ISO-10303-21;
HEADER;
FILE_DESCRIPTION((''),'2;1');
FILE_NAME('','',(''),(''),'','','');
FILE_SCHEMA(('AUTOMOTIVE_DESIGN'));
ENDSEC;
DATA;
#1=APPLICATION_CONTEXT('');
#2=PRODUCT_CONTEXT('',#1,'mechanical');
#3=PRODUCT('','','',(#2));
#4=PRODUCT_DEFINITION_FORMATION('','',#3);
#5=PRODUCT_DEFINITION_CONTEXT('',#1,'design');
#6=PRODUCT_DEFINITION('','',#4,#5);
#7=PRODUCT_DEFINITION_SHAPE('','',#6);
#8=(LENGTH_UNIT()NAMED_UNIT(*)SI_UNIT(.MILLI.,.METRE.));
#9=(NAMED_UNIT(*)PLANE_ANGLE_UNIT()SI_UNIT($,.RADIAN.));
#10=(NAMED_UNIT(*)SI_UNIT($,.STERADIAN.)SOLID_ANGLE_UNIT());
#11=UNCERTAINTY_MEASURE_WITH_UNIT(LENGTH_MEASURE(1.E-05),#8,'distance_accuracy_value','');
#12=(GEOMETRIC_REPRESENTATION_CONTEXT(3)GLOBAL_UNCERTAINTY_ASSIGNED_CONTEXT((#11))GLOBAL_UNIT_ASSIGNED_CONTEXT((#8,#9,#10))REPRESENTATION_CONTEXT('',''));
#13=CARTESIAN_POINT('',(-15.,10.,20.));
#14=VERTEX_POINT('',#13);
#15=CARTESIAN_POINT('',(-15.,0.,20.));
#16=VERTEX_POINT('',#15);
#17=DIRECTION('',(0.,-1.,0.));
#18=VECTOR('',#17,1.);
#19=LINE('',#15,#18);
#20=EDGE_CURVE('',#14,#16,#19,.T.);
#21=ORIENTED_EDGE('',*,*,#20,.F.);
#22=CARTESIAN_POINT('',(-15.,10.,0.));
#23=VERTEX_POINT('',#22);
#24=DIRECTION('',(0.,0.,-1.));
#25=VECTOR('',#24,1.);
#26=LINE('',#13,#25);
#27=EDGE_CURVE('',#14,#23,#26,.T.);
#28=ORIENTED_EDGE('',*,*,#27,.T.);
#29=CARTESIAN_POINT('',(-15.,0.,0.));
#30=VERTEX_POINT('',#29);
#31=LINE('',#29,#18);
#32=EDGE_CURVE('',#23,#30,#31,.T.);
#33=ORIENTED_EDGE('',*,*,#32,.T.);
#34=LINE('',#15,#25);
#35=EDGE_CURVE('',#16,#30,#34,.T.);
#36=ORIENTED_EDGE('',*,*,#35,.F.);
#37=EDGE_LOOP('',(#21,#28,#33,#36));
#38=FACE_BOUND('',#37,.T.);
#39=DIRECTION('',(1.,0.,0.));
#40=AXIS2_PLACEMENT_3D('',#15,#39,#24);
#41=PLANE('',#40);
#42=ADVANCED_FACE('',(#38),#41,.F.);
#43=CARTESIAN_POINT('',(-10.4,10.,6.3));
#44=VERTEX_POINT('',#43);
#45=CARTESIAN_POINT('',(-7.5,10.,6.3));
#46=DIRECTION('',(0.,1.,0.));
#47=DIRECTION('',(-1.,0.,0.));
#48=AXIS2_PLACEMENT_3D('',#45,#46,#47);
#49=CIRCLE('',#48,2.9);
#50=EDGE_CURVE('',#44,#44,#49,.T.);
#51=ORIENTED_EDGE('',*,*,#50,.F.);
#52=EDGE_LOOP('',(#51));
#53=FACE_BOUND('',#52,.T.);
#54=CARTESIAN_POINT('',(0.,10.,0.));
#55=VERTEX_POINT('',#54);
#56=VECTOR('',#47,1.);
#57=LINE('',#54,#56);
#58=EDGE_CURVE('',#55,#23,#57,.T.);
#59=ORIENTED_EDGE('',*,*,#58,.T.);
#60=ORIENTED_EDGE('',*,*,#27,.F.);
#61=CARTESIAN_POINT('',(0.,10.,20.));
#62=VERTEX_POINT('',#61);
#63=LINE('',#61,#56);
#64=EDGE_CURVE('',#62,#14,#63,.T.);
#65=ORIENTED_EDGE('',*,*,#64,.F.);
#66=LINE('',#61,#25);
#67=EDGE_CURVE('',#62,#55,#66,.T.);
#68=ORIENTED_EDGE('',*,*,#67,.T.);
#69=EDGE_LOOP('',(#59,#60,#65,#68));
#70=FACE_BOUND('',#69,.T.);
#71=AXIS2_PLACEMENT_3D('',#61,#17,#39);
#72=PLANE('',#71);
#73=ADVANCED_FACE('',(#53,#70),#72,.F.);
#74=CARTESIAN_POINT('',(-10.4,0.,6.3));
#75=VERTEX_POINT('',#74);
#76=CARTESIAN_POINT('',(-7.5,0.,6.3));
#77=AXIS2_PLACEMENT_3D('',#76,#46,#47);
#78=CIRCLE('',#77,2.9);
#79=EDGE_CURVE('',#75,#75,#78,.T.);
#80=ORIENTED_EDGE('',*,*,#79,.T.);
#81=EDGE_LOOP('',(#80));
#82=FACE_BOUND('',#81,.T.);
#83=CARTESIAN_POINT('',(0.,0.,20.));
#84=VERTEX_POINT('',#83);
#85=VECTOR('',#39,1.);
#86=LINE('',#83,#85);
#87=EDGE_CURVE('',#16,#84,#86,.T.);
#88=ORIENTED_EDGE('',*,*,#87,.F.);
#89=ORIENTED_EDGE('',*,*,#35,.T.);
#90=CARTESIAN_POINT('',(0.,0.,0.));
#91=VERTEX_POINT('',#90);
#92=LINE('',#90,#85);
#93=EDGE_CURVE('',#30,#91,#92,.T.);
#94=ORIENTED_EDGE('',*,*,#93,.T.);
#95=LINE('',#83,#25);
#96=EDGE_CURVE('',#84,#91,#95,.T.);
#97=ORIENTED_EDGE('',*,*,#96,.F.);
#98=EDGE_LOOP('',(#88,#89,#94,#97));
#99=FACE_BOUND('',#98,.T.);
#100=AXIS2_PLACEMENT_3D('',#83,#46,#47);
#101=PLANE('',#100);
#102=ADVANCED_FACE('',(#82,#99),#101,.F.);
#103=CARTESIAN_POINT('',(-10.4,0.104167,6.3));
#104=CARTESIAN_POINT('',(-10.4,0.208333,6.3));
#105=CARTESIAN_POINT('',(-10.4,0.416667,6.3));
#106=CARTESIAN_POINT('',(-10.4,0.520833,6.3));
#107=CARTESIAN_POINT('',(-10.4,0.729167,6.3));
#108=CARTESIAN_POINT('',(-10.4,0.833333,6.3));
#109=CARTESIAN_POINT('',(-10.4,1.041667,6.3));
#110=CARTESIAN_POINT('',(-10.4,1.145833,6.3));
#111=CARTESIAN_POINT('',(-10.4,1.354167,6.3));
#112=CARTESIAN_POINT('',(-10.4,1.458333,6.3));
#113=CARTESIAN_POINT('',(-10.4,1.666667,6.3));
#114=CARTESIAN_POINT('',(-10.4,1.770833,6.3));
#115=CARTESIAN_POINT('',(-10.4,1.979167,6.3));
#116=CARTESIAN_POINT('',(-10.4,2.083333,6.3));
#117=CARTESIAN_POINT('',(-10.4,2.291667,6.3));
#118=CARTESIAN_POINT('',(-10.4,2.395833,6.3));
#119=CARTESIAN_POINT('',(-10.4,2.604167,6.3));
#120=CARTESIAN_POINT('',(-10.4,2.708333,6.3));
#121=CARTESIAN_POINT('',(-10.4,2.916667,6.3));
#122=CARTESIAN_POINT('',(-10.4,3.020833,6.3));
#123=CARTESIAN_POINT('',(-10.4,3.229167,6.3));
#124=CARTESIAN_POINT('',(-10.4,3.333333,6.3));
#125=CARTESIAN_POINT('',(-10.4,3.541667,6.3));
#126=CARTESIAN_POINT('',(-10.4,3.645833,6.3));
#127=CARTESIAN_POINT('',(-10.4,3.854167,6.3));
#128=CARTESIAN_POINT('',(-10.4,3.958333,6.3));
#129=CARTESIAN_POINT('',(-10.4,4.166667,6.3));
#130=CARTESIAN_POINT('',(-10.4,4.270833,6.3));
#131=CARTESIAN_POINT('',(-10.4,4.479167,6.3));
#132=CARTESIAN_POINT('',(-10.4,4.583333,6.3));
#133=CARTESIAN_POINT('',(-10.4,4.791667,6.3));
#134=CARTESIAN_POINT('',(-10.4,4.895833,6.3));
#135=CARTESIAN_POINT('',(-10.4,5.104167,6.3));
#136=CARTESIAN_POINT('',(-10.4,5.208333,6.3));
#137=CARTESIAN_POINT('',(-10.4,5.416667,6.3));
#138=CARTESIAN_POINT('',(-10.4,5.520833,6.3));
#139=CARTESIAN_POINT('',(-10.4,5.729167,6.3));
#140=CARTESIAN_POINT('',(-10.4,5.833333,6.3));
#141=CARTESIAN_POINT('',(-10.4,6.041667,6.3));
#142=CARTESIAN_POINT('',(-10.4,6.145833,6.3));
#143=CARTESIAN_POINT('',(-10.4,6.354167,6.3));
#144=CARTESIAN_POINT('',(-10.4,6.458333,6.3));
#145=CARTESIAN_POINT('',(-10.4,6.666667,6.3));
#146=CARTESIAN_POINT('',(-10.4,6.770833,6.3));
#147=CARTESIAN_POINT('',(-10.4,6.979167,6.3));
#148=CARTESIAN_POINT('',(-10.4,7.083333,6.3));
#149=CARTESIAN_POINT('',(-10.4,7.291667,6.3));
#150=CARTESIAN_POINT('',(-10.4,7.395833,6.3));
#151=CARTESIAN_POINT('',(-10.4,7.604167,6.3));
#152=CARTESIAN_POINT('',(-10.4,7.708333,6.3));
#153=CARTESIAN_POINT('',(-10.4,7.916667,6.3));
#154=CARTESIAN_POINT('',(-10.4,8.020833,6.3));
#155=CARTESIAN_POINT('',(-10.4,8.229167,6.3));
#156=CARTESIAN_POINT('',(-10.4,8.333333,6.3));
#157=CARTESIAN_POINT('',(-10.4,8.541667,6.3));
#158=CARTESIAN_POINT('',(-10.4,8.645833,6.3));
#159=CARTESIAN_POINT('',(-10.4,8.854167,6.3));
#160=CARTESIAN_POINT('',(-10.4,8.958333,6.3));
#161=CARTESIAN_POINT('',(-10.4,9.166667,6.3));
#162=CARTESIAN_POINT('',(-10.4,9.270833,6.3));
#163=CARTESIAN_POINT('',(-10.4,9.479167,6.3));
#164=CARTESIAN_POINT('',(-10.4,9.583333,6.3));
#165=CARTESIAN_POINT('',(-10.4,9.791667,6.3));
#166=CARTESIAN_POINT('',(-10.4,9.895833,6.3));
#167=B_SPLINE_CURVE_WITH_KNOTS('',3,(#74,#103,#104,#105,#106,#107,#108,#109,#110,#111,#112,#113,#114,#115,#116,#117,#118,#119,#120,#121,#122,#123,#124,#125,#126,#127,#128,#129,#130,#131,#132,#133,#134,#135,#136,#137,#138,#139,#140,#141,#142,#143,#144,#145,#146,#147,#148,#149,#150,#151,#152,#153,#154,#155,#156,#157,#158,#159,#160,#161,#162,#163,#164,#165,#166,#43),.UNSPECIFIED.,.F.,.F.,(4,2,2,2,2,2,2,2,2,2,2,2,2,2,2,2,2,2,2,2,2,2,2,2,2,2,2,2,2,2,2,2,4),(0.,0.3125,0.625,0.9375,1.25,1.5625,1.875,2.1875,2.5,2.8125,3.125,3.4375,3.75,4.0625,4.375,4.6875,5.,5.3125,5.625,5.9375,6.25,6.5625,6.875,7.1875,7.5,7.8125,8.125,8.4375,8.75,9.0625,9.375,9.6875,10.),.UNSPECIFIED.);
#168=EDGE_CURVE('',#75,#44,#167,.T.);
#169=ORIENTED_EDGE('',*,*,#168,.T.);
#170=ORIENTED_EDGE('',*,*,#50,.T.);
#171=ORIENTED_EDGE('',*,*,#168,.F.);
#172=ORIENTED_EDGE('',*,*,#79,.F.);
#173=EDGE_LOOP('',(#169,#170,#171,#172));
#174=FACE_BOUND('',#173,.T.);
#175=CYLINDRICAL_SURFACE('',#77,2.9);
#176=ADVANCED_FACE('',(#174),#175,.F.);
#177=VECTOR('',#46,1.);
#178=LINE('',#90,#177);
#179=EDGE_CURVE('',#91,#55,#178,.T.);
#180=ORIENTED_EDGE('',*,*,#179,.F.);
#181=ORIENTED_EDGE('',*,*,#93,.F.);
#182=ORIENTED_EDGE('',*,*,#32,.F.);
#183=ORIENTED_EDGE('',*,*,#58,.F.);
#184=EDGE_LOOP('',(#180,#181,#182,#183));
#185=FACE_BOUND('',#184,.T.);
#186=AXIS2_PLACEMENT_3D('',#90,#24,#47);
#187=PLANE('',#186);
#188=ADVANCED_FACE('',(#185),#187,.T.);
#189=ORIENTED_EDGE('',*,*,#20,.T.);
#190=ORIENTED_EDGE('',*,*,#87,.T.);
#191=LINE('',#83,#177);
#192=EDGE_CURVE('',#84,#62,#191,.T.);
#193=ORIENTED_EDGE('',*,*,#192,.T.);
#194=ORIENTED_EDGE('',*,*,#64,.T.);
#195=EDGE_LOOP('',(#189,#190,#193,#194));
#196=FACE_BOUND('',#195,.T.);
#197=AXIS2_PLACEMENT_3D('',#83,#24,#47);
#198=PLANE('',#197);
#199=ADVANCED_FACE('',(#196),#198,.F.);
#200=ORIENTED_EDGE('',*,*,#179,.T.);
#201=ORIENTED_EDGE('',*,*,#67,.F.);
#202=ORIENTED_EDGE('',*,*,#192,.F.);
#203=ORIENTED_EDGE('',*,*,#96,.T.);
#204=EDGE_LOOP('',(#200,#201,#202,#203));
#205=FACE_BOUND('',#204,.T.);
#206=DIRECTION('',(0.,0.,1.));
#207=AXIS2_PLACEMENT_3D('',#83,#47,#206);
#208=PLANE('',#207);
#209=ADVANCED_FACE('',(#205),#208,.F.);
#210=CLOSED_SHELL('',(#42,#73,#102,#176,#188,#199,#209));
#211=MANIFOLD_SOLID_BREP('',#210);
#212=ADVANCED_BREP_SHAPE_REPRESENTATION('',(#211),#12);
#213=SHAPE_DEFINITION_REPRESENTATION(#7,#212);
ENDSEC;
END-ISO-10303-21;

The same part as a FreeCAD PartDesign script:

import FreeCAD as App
import Part
import Sketcher

V = App.Vector
Q = App.Units.Quantity

doc = App.newDocument("Part")
body = doc.addObject("PartDesign::Body", "Body")

# Sketch on XY plane
sketch1 = body.newObject("Sketcher::SketchObject", "Sketch")
sketch1.AttachmentSupport = (doc.getObject("XY_Plane"), [""])
sketch1.MapMode = "FlatFace"
sketch1.addGeometry([
    Part.LineSegment(V(-15, 0, 0), V(0, 0, 0)),
    Part.LineSegment(V(0, 0, 0), V(0, 10, 0)),
    Part.LineSegment(V(0, 10, 0), V(-15, 10, 0)),
    Part.LineSegment(V(-15, 10, 0), V(-15, 0, 0)),
], False)
sketch1.addConstraint([
    Sketcher.Constraint("Coincident", 0, 2, 1, 1),
    Sketcher.Constraint("Coincident", 1, 2, 2, 1),
    Sketcher.Constraint("Coincident", 2, 2, 3, 1),
    Sketcher.Constraint("Coincident", 3, 2, 0, 1),
    Sketcher.Constraint("Horizontal", 0),
    Sketcher.Constraint("Vertical", 1),
    Sketcher.Constraint("Horizontal", 2),
    Sketcher.Constraint("Vertical", 3),
    Sketcher.Constraint("Coincident", 0, 2, -1, 1),
    Sketcher.Constraint("DistanceX", 0, 1, 0, 2, Q("15 mm")),
    Sketcher.Constraint("DistanceY", 1, 1, 1, 2, Q("10 mm")),
])
pad1 = body.newObject("PartDesign::Pad", "Pad")
pad1.Profile = sketch1
pad1.Length = 20

# Sketch on XZ plane
sketch2 = body.newObject("Sketcher::SketchObject", "Sketch001")
sketch2.AttachmentSupport = (doc.getObject("XZ_Plane"), [""])
sketch2.MapMode = "FlatFace"
sketch2.AttachmentOffset = App.Placement(V(0, 0, -10), App.Rotation())
sketch2.addGeometry(Part.Circle(V(-7.5, 6.3, 0), V(0, 0, 1), 2.9), False)
sketch2.addConstraint([
    Sketcher.Constraint("Diameter", 0, Q("5.8 mm")),
    Sketcher.Constraint("DistanceX", 0, 3, -1, 1, Q("7.5 mm")),
    Sketcher.Constraint("DistanceY", -1, 1, 0, 3, Q("6.3 mm")),
])
pocket1 = body.newObject("PartDesign::Pocket", "Pocket")
pocket1.Profile = sketch2
pocket1.Type = "ThroughAll"
pocket1.Reversed = True

doc.recompute()
